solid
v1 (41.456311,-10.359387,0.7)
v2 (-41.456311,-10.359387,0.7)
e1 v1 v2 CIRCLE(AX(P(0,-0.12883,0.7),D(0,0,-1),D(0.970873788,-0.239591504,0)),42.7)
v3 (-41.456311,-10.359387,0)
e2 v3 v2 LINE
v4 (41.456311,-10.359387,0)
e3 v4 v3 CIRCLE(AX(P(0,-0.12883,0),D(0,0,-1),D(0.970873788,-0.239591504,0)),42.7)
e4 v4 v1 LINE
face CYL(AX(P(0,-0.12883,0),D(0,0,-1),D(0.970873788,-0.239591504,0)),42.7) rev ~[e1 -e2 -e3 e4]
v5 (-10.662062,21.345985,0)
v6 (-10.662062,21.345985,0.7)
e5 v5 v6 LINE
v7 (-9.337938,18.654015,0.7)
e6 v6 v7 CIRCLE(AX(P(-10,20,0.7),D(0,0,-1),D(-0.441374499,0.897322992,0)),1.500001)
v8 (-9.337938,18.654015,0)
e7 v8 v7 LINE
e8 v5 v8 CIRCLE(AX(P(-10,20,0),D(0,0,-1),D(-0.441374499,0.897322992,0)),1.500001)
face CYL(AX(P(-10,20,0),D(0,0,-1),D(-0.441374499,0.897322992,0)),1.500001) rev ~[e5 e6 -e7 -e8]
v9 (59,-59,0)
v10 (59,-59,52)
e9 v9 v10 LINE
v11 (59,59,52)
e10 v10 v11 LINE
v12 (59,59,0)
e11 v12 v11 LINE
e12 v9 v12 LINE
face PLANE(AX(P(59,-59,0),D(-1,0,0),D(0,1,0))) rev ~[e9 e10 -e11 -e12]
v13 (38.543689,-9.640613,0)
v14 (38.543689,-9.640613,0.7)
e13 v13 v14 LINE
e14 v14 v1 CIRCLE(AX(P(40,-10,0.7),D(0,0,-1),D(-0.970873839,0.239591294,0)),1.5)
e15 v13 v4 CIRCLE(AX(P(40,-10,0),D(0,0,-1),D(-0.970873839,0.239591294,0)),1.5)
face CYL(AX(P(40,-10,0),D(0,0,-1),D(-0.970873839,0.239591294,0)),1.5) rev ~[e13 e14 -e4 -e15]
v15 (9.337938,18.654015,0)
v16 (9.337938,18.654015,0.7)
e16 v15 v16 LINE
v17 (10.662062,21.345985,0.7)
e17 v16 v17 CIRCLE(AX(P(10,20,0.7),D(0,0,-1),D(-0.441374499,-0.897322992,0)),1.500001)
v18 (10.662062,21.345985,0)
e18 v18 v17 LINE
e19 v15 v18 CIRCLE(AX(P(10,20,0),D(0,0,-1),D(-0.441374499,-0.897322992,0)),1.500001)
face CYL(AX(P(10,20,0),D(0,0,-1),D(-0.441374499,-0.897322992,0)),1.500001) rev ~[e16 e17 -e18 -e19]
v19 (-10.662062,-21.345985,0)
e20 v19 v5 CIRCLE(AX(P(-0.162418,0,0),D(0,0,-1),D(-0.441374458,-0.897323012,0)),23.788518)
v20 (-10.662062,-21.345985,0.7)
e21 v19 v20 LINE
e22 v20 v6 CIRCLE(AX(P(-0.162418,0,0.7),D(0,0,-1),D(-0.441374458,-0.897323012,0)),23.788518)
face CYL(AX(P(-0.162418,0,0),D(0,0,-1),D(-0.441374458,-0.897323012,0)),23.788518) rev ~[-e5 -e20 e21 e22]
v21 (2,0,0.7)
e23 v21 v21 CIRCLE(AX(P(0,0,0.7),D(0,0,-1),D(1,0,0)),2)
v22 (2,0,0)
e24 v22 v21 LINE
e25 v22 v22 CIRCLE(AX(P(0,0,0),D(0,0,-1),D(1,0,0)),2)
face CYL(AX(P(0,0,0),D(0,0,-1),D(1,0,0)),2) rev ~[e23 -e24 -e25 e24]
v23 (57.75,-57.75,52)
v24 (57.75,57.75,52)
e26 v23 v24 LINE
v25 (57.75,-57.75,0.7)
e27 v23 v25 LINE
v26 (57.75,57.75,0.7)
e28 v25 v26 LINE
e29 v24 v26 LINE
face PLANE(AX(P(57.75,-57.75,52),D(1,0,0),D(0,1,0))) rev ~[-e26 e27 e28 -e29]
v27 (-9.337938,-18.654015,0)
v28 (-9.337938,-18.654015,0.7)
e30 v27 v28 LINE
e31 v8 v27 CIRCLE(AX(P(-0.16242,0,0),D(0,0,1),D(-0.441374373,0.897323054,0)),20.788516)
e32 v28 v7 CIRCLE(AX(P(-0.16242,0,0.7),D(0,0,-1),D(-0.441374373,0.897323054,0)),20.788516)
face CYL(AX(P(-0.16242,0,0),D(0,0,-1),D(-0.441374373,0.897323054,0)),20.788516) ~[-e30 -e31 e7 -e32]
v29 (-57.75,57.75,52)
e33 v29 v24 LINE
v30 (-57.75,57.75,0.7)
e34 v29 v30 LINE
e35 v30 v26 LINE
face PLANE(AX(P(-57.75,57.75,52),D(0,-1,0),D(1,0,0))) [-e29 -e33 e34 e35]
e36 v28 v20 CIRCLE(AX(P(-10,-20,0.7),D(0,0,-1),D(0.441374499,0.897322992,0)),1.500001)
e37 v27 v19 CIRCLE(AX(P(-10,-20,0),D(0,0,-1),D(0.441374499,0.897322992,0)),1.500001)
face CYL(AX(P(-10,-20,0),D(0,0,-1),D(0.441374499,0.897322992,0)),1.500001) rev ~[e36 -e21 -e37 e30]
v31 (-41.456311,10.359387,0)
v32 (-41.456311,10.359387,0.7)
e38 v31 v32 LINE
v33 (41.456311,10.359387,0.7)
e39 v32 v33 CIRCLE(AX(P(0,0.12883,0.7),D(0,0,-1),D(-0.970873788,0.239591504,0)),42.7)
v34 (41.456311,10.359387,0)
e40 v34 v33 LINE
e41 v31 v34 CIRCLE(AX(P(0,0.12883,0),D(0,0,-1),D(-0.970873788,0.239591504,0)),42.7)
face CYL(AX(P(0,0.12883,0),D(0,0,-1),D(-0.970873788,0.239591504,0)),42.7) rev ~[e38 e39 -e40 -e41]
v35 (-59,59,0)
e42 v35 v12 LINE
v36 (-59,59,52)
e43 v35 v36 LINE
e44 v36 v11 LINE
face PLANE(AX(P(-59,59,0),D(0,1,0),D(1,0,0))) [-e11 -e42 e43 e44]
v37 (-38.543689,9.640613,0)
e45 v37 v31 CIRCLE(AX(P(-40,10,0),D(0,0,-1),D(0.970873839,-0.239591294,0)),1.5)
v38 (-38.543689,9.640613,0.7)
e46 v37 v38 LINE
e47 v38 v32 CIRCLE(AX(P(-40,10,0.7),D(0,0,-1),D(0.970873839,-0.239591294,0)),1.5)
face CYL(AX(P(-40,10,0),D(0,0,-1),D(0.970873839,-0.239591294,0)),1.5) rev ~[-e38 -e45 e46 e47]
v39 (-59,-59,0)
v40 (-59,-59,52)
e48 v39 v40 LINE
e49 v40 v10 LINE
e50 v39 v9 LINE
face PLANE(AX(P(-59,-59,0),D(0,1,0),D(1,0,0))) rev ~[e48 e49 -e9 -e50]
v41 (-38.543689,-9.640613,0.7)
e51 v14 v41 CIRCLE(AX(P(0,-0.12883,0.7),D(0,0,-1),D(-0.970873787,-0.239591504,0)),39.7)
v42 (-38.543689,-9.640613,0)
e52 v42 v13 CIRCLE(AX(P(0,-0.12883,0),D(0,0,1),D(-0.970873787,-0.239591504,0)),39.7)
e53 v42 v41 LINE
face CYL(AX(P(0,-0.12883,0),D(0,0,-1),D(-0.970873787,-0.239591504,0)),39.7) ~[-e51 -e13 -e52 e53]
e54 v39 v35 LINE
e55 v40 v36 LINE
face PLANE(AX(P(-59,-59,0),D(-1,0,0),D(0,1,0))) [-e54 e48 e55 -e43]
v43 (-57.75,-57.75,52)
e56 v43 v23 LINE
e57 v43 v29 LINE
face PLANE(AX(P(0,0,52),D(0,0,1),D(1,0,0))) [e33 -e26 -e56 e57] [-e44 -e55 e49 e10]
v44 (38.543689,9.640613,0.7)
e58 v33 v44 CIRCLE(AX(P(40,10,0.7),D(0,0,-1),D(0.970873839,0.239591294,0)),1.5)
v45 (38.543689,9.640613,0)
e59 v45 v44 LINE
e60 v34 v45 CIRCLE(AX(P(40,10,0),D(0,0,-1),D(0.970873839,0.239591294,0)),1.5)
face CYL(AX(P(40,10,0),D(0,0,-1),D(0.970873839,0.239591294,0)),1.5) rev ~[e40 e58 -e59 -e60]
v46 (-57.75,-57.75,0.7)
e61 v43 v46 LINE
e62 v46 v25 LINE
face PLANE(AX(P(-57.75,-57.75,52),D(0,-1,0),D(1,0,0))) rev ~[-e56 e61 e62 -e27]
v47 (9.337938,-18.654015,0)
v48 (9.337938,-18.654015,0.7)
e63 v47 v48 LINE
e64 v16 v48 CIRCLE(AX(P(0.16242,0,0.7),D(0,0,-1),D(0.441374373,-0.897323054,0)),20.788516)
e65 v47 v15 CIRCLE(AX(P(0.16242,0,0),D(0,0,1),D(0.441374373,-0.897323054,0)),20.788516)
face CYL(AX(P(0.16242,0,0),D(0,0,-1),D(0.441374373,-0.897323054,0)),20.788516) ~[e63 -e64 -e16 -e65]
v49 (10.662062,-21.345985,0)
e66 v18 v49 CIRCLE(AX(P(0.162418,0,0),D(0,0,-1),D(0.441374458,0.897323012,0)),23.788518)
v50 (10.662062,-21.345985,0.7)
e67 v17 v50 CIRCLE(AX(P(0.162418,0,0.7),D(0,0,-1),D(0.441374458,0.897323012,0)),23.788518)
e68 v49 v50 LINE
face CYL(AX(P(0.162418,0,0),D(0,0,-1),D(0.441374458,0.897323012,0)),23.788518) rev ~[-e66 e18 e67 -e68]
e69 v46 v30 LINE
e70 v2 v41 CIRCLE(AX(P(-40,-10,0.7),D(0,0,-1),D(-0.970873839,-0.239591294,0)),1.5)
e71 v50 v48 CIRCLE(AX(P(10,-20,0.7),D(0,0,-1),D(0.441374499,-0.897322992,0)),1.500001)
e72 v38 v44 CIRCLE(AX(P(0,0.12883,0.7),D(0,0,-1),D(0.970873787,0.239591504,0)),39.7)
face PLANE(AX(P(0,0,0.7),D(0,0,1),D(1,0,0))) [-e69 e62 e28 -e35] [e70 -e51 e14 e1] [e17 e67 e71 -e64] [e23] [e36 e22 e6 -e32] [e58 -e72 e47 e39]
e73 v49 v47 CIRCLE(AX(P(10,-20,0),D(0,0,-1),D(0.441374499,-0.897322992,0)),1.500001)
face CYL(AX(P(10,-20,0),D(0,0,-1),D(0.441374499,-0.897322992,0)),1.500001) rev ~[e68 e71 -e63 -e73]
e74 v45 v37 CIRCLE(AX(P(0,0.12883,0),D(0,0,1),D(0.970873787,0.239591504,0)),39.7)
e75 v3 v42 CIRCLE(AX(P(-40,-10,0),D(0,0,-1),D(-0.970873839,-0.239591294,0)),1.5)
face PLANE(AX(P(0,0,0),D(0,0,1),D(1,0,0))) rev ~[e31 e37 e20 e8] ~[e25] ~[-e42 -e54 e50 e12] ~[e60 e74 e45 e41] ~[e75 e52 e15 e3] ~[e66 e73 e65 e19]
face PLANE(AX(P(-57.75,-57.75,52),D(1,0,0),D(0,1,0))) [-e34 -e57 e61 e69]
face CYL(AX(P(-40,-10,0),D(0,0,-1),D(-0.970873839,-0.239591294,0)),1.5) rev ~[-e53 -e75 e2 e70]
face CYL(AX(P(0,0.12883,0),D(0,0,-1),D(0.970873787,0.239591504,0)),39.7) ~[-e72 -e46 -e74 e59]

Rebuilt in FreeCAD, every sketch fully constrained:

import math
import FreeCAD as App
import Part
import Sketcher

V = App.Vector
Q = App.Units.Quantity

doc = App.newDocument("Part")
body = doc.addObject("PartDesign::Body", "Body")

# Sketch on XY plane
sketch1 = body.newObject("Sketcher::SketchObject", "Sketch")
sketch1.AttachmentSupport = (doc.getObject("XY_Plane"), [""])
sketch1.MapMode = "FlatFace"
sketch1.addGeometry([
    Part.LineSegment(V(-59, 59, 0), V(-59, -59, 0)),
    Part.LineSegment(V(-59, -59, 0), V(59, -59, 0)),
    Part.LineSegment(V(59, -59, 0), V(59, 59, 0)),
    Part.LineSegment(V(59, 59, 0), V(-59, 59, 0)),
], False)
sketch1.addConstraint([
    Sketcher.Constraint("Coincident", 0, 2, 1, 1),
    Sketcher.Constraint("Coincident", 1, 2, 2, 1),
    Sketcher.Constraint("Coincident", 2, 2, 3, 1),
    Sketcher.Constraint("Coincident", 3, 2, 0, 1),
    Sketcher.Constraint("Vertical", 0),
    Sketcher.Constraint("Horizontal", 1),
    Sketcher.Constraint("Vertical", 2),
    Sketcher.Constraint("Horizontal", 3),
    Sketcher.Constraint("Symmetric", 0, 2, 2, 2, -1, 1),
    Sketcher.Constraint("Equal", 3, 0),
    Sketcher.Constraint("DistanceX", 1, 1, 1, 2, Q("118 mm")),
])
pad1 = body.newObject("PartDesign::Pad", "Pad")
pad1.Profile = sketch1
pad1.Length = 52

# Sketch on XY plane
sketch2 = body.newObject("Sketcher::SketchObject", "Sketch001")
sketch2.AttachmentSupport = (doc.getObject("XY_Plane"), [""])
sketch2.MapMode = "FlatFace"
sketch2.AttachmentOffset = App.Placement(V(0, 0, 52), App.Rotation())
sketch2.addGeometry([
    Part.LineSegment(V(-58, 58, 0), V(-58, -58, 0)),
    Part.LineSegment(V(-58, -58, 0), V(58, -58, 0)),
    Part.LineSegment(V(58, -58, 0), V(58, 58, 0)),
    Part.LineSegment(V(58, 58, 0), V(-58, 58, 0)),
], False)
sketch2.addConstraint([
    Sketcher.Constraint("Coincident", 0, 2, 1, 1),
    Sketcher.Constraint("Coincident", 1, 2, 2, 1),
    Sketcher.Constraint("Coincident", 2, 2, 3, 1),
    Sketcher.Constraint("Coincident", 3, 2, 0, 1),
    Sketcher.Constraint("Vertical", 0),
    Sketcher.Constraint("Horizontal", 1),
    Sketcher.Constraint("Vertical", 2),
    Sketcher.Constraint("Horizontal", 3),
    Sketcher.Constraint("Symmetric", 0, 2, 2, 2, -1, 1),
    Sketcher.Constraint("Equal", 3, 0),
    Sketcher.Constraint("DistanceX", 1, 1, 1, 2, Q("115.5 mm")),
])
pocket1 = body.newObject("PartDesign::Pocket", "Pocket")
pocket1.Profile = sketch2
pocket1.Length = 51.3

# Sketch on XY plane
sketch3 = body.newObject("Sketcher::SketchObject", "Sketch002")
sketch3.AttachmentSupport = (doc.getObject("XY_Plane"), [""])
sketch3.MapMode = "FlatFace"
sketch3.addGeometry([
    Part.ArcOfCircle(Part.Circle(V(40, -10, 0), V(0, 0, 1), 1.5), math.radians(-14), math.radians(166)),  # 0
    Part.ArcOfCircle(Part.Circle(V(0, -0.1, 0), V(0, 0, 1), 42.7), math.radians(-166), math.radians(-14)),  # 1
    Part.ArcOfCircle(Part.Circle(V(-40, -10, 0), V(0, 0, 1), 1.5), math.radians(14), math.radians(194)),  # 2
    Part.ArcOfCircle(Part.Circle(V(0, -0.1, 0), V(0, 0, 1), 39.7), math.radians(-166), math.radians(-14)),  # 3
    Part.ArcOfCircle(Part.Circle(V(40, 10, 0), V(0, 0, 1), 1.5), math.radians(-166), math.radians(14)),  # 4
    Part.ArcOfCircle(Part.Circle(V(0, 0.1, 0), V(0, 0, 1), 39.7), math.radians(14), math.radians(166)),  # 5
    Part.ArcOfCircle(Part.Circle(V(-40, 10, 0), V(0, 0, 1), 1.5), math.radians(166), math.radians(346)),  # 6
    Part.ArcOfCircle(Part.Circle(V(0, 0.1, 0), V(0, 0, 1), 42.7), math.radians(14), math.radians(166)),  # 7
    Part.ArcOfCircle(Part.Circle(V(10, 20, 0), V(0, 0, 1), 1.5), math.radians(64), math.radians(244)),  # 8
    Part.ArcOfCircle(Part.Circle(V(0.2, 0, 0), V(0, 0, 1), 23.8), math.radians(-64), math.radians(64)),  # 9
    Part.ArcOfCircle(Part.Circle(V(10, -20, 0), V(0, 0, 1), 1.5), math.radians(116), math.radians(296)),  # 10
    Part.ArcOfCircle(Part.Circle(V(0.2, 0, 0), V(0, 0, 1), 20.8), math.radians(-64), math.radians(64)),  # 11
    Part.ArcOfCircle(Part.Circle(V(-0.2, 0, 0), V(0, 0, 1), 20.8), math.radians(116), math.radians(244)),  # 12
    Part.ArcOfCircle(Part.Circle(V(-10, -20, 0), V(0, 0, 1), 1.5), math.radians(-116), math.radians(64)),  # 13
    Part.ArcOfCircle(Part.Circle(V(-0.2, 0, 0), V(0, 0, 1), 23.8), math.radians(116), math.radians(244)),  # 14
    Part.ArcOfCircle(Part.Circle(V(-10, 20, 0), V(0, 0, 1), 1.5), math.radians(-64), math.radians(116)),  # 15
    Part.Circle(V(0, 0, 0), V(0, 0, 1), 2),  # 16
], False)
sketch3.addConstraint([
    Sketcher.Constraint("Tangent", 0, 1, 1, 2),
    Sketcher.Constraint("Tangent", 1, 1, 2, 2),
    Sketcher.Constraint("Tangent", 2, 1, 3, 1),
    Sketcher.Constraint("Tangent", 3, 2, 0, 2),
    Sketcher.Constraint("Tangent", 4, 1, 5, 1),
    Sketcher.Constraint("Tangent", 5, 2, 6, 2),
    Sketcher.Constraint("Tangent", 6, 1, 7, 2),
    Sketcher.Constraint("Tangent", 7, 1, 4, 2),
    Sketcher.Constraint("Tangent", 8, 1, 9, 2),
    Sketcher.Constraint("Tangent", 9, 1, 10, 2),
    Sketcher.Constraint("Tangent", 10, 1, 11, 1),
    Sketcher.Constraint("Tangent", 11, 2, 8, 2),
    Sketcher.Constraint("Tangent", 12, 2, 13, 2),
    Sketcher.Constraint("Tangent", 13, 1, 14, 2),
    Sketcher.Constraint("Tangent", 14, 1, 15, 2),
    Sketcher.Constraint("Tangent", 15, 1, 12, 1),
    Sketcher.Constraint("Coincident", 16, 3, -1, 1),
    Sketcher.Constraint("Coincident", 3, 3, 1, 3),
    Sketcher.Constraint("Coincident", 7, 3, 5, 3),
    Sketcher.Constraint("Coincident", 11, 3, 9, 3),
    Sketcher.Constraint("Coincident", 14, 3, 12, 3),
    Sketcher.Constraint("Equal", 2, 4),
    Sketcher.Constraint("Equal", 3, 5),
    Sketcher.Constraint("Equal", 6, 8),
    Sketcher.Constraint("Equal", 11, 12),
    Sketcher.Constraint("Equal", 10, 13),
    Sketcher.Constraint("Symmetric", 2, 3, 4, 3, -1, 1),
    Sketcher.Constraint("Symmetric", 0, 3, 6, 3, -1, 1),
    Sketcher.Constraint("Symmetric", 9, 3, 12, 3, -1, 1),
    Sketcher.Constraint("Symmetric", 0, 3, 2, 3, -2),
    Sketcher.Constraint("Symmetric", 10, 3, 13, 3, -2),
    Sketcher.Constraint("Horizontal", 8, 3, 15, 3),
    Sketcher.Constraint("Vertical", 8, 3, 10, 3),
    Sketcher.Constraint("Diameter", 16, Q("4 mm")),
    Sketcher.Constraint("Radius", 0, Q("1.5 mm")),
    Sketcher.Constraint("Radius", 1, Q("42.7 mm")),
    Sketcher.Constraint("DistanceX", -1, 1, 0, 3, Q("40 mm")),
    Sketcher.Constraint("DistanceY", 0, 3, -1, 1, Q("10 mm")),
    Sketcher.Constraint("DistanceX", -1, 1, 8, 3, Q("10 mm")),
    Sketcher.Constraint("DistanceY", -1, 1, 8, 3, Q("20 mm")),
    Sketcher.Constraint("Radius", 9, Q("23.788518 mm")),
])
pocket2 = body.newObject("PartDesign::Pocket", "Pocket001")
pocket2.Profile = sketch3
pocket2.Length = 25
pocket2.Reversed = True

doc.recompute()
